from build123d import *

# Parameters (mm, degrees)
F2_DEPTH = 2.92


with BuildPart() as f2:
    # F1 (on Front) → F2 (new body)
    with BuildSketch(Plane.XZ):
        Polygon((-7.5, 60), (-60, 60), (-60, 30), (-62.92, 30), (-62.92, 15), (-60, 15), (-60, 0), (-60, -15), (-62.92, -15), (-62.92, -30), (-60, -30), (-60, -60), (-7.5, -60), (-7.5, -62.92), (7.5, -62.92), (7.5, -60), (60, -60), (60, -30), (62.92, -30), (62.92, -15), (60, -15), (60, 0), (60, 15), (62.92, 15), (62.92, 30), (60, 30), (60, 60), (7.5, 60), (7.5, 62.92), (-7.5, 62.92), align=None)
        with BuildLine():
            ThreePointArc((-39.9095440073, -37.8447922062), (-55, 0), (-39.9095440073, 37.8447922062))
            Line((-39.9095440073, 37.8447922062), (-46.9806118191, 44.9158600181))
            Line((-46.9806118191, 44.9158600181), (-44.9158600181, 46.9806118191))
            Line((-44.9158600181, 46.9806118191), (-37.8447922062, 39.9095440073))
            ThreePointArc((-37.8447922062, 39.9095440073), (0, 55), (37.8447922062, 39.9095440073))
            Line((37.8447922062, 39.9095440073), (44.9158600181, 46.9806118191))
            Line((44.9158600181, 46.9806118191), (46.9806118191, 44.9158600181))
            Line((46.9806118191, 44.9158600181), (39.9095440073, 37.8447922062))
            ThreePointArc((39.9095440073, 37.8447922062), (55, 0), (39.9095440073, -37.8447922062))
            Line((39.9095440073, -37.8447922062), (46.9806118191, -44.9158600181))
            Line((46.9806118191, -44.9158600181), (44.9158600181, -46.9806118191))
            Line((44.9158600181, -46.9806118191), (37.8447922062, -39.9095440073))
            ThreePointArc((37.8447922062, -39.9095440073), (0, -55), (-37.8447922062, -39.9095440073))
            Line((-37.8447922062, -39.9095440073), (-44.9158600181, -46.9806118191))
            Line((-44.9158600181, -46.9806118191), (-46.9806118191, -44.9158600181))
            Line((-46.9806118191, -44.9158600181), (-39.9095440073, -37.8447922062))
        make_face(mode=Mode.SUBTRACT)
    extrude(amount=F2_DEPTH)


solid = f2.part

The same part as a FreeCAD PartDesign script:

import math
import FreeCAD as App
import Part
import Sketcher


def add_polygon(sketch, points):
    """Adds a closed chain of lines whose ends are joined by coincident constraints."""
    first, n = sketch.GeometryCount, len(points)
    for a, b in zip(points, points[1:] + points[:1]):
        sketch.addGeometry(Part.LineSegment(App.Vector(*a, 0), App.Vector(*b, 0)), False)
    for i in range(n):
        sketch.addConstraint(Sketcher.Constraint("Coincident", first + i, 2, first + (i + 1) % n, 1))

doc = App.newDocument("Part")
body = doc.addObject("PartDesign::Body", "Body")

sketch1 = doc.addObject("Sketcher::SketchObject", "Sketch")
body.addObject(sketch1)
sketch1.AttachmentSupport = (doc.XZ_Plane, [""])
sketch1.MapMode = "FlatFace"
add_polygon(sketch1, [(-7.5, 60), (-60, 60), (-60, 30), (-62.9, 30), (-62.9, 15), (-60, 15), (-60, -15), (-62.9, -15), (-62.9, -30), (-60, -30), (-60, -60), (-7.5, -60), (-7.5, -62.9), (7.5, -62.9), (7.5, -60), (60, -60), (60, -30), (62.9, -30), (62.9, -15), (60, -15), (60, 15), (62.9, 15), (62.9, 30), (60, 30), (60, 60), (7.5, 60), (7.5, 62.9), (-7.5, 62.9)])
sketch1.addGeometry(Part.LineSegment(App.Vector(-47, -44.9, 0), App.Vector(-39.9, -37.8, 0)), False)
sketch1.addGeometry(Part.ArcOfCircle(Part.Circle(App.Vector(0, 0, 0), App.Vector(0, 0, 1), 55), math.radians(137), math.radians(223)), False)
sketch1.addGeometry(Part.LineSegment(App.Vector(-39.9, 37.8, 0), App.Vector(-47, 44.9, 0)), False)
sketch1.addGeometry(Part.LineSegment(App.Vector(-47, 44.9, 0), App.Vector(-44.9, 47, 0)), False)
sketch1.addGeometry(Part.LineSegment(App.Vector(-44.9, 47, 0), App.Vector(-37.8, 39.9, 0)), False)
sketch1.addGeometry(Part.ArcOfCircle(Part.Circle(App.Vector(0, 0, 0), App.Vector(0, 0, 1), 55), math.radians(47), math.radians(133)), False)
sketch1.addGeometry(Part.LineSegment(App.Vector(37.8, 39.9, 0), App.Vector(44.9, 47, 0)), False)
sketch1.addGeometry(Part.LineSegment(App.Vector(44.9, 47, 0), App.Vector(47, 44.9, 0)), False)
sketch1.addGeometry(Part.LineSegment(App.Vector(47, 44.9, 0), App.Vector(39.9, 37.8, 0)), False)
sketch1.addGeometry(Part.ArcOfCircle(Part.Circle(App.Vector(0, 0, 0), App.Vector(0, 0, 1), 55), math.radians(-43), math.radians(43)), False)
sketch1.addGeometry(Part.LineSegment(App.Vector(39.9, -37.8, 0), App.Vector(47, -44.9, 0)), False)
sketch1.addGeometry(Part.LineSegment(App.Vector(47, -44.9, 0), App.Vector(44.9, -47, 0)), False)
sketch1.addGeometry(Part.LineSegment(App.Vector(44.9, -47, 0), App.Vector(37.8, -39.9, 0)), False)
sketch1.addGeometry(Part.ArcOfCircle(Part.Circle(App.Vector(0, 0, 0), App.Vector(0, 0, 1), 55), math.radians(-133), math.radians(-47)), False)
sketch1.addGeometry(Part.LineSegment(App.Vector(-37.8, -39.9, 0), App.Vector(-44.9, -47, 0)), False)
sketch1.addGeometry(Part.LineSegment(App.Vector(-44.9, -47, 0), App.Vector(-47, -44.9, 0)), False)
sketch1.addConstraint([
    Sketcher.Constraint("Coincident", 28, 2, 29, 2),
    Sketcher.Constraint("Coincident", 29, 1, 30, 1),
    Sketcher.Constraint("Coincident", 30, 2, 31, 1),
    Sketcher.Constraint("Coincident", 31, 2, 32, 1),
    Sketcher.Constraint("Coincident", 32, 2, 33, 2),
    Sketcher.Constraint("Coincident", 33, 1, 34, 1),
    Sketcher.Constraint("Coincident", 34, 2, 35, 1),
    Sketcher.Constraint("Coincident", 35, 2, 36, 1),
    Sketcher.Constraint("Coincident", 36, 2, 37, 2),
    Sketcher.Constraint("Coincident", 37, 1, 38, 1),
    Sketcher.Constraint("Coincident", 38, 2, 39, 1),
    Sketcher.Constraint("Coincident", 39, 2, 40, 1),
    Sketcher.Constraint("Coincident", 40, 2, 41, 2),
    Sketcher.Constraint("Coincident", 41, 1, 42, 1),
    Sketcher.Constraint("Coincident", 42, 2, 43, 1),
    Sketcher.Constraint("Coincident", 43, 2, 28, 1),
    Sketcher.Constraint("Horizontal", 0),
    Sketcher.Constraint("Vertical", 1),
    Sketcher.Constraint("Horizontal", 2),
    Sketcher.Constraint("Vertical", 3),
    Sketcher.Constraint("Horizontal", 4),
    Sketcher.Constraint("Vertical", 5),
    Sketcher.Constraint("Horizontal", 6),
    Sketcher.Constraint("Vertical", 7),
    Sketcher.Constraint("Horizontal", 8),
    Sketcher.Constraint("Vertical", 9),
    Sketcher.Constraint("Horizontal", 10),
    Sketcher.Constraint("Vertical", 11),
    Sketcher.Constraint("Horizontal", 12),
    Sketcher.Constraint("Vertical", 13),
    Sketcher.Constraint("Horizontal", 14),
    Sketcher.Constraint("Vertical", 15),
    Sketcher.Constraint("Horizontal", 16),
    Sketcher.Constraint("Vertical", 17),
    Sketcher.Constraint("Horizontal", 18),
    Sketcher.Constraint("Vertical", 19),
    Sketcher.Constraint("Horizontal", 20),
    Sketcher.Constraint("Vertical", 21),
    Sketcher.Constraint("Horizontal", 22),
    Sketcher.Constraint("Vertical", 23),
    Sketcher.Constraint("Horizontal", 24),
    Sketcher.Constraint("Vertical", 25),
    Sketcher.Constraint("Horizontal", 26),
    Sketcher.Constraint("Vertical", 27),
    Sketcher.Constraint("Coincident", 29, 3, -1, 1),
    Sketcher.Constraint("Coincident", 33, 3, -1, 1),
    Sketcher.Constraint("Coincident", 37, 3, -1, 1),
    Sketcher.Constraint("Coincident", 41, 3, -1, 1),
    Sketcher.Constraint("Equal", 29, 33),
    Sketcher.Constraint("Equal", 33, 37),
    Sketcher.Constraint("Equal", 37, 41),
    Sketcher.Constraint("Symmetric", 0, 2, 14, 2, -1, 1),
    Sketcher.Constraint("Symmetric", 2, 2, 16, 2, -1, 1),
    Sketcher.Constraint("Symmetric", 4, 2, 18, 2, -1, 1),
    Sketcher.Constraint("Symmetric", 6, 2, 20, 2, -1, 1),
    Sketcher.Constraint("Symmetric", 8, 2, 22, 2, -1, 1),
    Sketcher.Constraint("Symmetric", 10, 2, 24, 2, -1, 1),
    Sketcher.Constraint("Symmetric", 12, 2, 26, 2, -1, 1),
    Sketcher.Constraint("Symmetric", 30, 2, 38, 2, -1, 1),
    Sketcher.Constraint("Symmetric", 31, 2, 39, 2, -1, 1),
    Sketcher.Constraint("Symmetric", 34, 2, 42, 2, -1, 1),
    Sketcher.Constraint("Symmetric", 35, 2, 43, 2, -1, 1),
    Sketcher.Constraint("Symmetric", 10, 2, 13, 2, -2),
    Sketcher.Constraint("Symmetric", 8, 2, 15, 2, -2),
    Sketcher.Constraint("Symmetric", 6, 2, 17, 2, -2),
    Sketcher.Constraint("Symmetric", 31, 2, 34, 2, -2),
    Sketcher.Constraint("Symmetric", 30, 2, 35, 2, -2),
    Sketcher.Constraint("Perpendicular", 28, 30),
    Sketcher.Constraint("Perpendicular", 30, 31),
    Sketcher.Constraint("Perpendicular", 31, 32),
    Sketcher.Constraint("Perpendicular", 32, 34),
    Sketcher.Constraint("Perpendicular", 34, 35),
    Sketcher.Constraint("Perpendicular", 35, 36),
    Sketcher.Constraint("Perpendicular", 36, 38),
    Sketcher.Constraint("Perpendicular", 39, 40),
    Sketcher.Constraint("Perpendicular", 40, 42),
    Sketcher.Constraint("Vertical", 1, 2, 4, 2),
    Sketcher.Constraint("Equal", 26, 3),
    Sketcher.Constraint("Equal", 1, 5),
    Sketcher.Constraint("Equal", 22, 11),
    Sketcher.Constraint("Equal", 30, 32),
    Sketcher.Constraint("Radius", 29, 55.0),
    Sketcher.Constraint("DistanceX", 12, 1, 12, 2, 15.0),
    Sketcher.Constraint("DistanceY", 1, 2, 1, 1, 30.0),
    Sketcher.Constraint("Distance", 28, 10.0),
    Sketcher.Constraint("DistanceX", 0, 2, 0, 1, 52.5),
    Sketcher.Constraint("DistanceX", 2, 2, 2, 1, 2.92),
    Sketcher.Constraint("Distance", 31, 2.92),
])
pad1 = doc.addObject("PartDesign::Pad", "Pad")
body.addObject(pad1)
pad1.Profile = sketch1
pad1.Length = 2.92

doc.recompute()
